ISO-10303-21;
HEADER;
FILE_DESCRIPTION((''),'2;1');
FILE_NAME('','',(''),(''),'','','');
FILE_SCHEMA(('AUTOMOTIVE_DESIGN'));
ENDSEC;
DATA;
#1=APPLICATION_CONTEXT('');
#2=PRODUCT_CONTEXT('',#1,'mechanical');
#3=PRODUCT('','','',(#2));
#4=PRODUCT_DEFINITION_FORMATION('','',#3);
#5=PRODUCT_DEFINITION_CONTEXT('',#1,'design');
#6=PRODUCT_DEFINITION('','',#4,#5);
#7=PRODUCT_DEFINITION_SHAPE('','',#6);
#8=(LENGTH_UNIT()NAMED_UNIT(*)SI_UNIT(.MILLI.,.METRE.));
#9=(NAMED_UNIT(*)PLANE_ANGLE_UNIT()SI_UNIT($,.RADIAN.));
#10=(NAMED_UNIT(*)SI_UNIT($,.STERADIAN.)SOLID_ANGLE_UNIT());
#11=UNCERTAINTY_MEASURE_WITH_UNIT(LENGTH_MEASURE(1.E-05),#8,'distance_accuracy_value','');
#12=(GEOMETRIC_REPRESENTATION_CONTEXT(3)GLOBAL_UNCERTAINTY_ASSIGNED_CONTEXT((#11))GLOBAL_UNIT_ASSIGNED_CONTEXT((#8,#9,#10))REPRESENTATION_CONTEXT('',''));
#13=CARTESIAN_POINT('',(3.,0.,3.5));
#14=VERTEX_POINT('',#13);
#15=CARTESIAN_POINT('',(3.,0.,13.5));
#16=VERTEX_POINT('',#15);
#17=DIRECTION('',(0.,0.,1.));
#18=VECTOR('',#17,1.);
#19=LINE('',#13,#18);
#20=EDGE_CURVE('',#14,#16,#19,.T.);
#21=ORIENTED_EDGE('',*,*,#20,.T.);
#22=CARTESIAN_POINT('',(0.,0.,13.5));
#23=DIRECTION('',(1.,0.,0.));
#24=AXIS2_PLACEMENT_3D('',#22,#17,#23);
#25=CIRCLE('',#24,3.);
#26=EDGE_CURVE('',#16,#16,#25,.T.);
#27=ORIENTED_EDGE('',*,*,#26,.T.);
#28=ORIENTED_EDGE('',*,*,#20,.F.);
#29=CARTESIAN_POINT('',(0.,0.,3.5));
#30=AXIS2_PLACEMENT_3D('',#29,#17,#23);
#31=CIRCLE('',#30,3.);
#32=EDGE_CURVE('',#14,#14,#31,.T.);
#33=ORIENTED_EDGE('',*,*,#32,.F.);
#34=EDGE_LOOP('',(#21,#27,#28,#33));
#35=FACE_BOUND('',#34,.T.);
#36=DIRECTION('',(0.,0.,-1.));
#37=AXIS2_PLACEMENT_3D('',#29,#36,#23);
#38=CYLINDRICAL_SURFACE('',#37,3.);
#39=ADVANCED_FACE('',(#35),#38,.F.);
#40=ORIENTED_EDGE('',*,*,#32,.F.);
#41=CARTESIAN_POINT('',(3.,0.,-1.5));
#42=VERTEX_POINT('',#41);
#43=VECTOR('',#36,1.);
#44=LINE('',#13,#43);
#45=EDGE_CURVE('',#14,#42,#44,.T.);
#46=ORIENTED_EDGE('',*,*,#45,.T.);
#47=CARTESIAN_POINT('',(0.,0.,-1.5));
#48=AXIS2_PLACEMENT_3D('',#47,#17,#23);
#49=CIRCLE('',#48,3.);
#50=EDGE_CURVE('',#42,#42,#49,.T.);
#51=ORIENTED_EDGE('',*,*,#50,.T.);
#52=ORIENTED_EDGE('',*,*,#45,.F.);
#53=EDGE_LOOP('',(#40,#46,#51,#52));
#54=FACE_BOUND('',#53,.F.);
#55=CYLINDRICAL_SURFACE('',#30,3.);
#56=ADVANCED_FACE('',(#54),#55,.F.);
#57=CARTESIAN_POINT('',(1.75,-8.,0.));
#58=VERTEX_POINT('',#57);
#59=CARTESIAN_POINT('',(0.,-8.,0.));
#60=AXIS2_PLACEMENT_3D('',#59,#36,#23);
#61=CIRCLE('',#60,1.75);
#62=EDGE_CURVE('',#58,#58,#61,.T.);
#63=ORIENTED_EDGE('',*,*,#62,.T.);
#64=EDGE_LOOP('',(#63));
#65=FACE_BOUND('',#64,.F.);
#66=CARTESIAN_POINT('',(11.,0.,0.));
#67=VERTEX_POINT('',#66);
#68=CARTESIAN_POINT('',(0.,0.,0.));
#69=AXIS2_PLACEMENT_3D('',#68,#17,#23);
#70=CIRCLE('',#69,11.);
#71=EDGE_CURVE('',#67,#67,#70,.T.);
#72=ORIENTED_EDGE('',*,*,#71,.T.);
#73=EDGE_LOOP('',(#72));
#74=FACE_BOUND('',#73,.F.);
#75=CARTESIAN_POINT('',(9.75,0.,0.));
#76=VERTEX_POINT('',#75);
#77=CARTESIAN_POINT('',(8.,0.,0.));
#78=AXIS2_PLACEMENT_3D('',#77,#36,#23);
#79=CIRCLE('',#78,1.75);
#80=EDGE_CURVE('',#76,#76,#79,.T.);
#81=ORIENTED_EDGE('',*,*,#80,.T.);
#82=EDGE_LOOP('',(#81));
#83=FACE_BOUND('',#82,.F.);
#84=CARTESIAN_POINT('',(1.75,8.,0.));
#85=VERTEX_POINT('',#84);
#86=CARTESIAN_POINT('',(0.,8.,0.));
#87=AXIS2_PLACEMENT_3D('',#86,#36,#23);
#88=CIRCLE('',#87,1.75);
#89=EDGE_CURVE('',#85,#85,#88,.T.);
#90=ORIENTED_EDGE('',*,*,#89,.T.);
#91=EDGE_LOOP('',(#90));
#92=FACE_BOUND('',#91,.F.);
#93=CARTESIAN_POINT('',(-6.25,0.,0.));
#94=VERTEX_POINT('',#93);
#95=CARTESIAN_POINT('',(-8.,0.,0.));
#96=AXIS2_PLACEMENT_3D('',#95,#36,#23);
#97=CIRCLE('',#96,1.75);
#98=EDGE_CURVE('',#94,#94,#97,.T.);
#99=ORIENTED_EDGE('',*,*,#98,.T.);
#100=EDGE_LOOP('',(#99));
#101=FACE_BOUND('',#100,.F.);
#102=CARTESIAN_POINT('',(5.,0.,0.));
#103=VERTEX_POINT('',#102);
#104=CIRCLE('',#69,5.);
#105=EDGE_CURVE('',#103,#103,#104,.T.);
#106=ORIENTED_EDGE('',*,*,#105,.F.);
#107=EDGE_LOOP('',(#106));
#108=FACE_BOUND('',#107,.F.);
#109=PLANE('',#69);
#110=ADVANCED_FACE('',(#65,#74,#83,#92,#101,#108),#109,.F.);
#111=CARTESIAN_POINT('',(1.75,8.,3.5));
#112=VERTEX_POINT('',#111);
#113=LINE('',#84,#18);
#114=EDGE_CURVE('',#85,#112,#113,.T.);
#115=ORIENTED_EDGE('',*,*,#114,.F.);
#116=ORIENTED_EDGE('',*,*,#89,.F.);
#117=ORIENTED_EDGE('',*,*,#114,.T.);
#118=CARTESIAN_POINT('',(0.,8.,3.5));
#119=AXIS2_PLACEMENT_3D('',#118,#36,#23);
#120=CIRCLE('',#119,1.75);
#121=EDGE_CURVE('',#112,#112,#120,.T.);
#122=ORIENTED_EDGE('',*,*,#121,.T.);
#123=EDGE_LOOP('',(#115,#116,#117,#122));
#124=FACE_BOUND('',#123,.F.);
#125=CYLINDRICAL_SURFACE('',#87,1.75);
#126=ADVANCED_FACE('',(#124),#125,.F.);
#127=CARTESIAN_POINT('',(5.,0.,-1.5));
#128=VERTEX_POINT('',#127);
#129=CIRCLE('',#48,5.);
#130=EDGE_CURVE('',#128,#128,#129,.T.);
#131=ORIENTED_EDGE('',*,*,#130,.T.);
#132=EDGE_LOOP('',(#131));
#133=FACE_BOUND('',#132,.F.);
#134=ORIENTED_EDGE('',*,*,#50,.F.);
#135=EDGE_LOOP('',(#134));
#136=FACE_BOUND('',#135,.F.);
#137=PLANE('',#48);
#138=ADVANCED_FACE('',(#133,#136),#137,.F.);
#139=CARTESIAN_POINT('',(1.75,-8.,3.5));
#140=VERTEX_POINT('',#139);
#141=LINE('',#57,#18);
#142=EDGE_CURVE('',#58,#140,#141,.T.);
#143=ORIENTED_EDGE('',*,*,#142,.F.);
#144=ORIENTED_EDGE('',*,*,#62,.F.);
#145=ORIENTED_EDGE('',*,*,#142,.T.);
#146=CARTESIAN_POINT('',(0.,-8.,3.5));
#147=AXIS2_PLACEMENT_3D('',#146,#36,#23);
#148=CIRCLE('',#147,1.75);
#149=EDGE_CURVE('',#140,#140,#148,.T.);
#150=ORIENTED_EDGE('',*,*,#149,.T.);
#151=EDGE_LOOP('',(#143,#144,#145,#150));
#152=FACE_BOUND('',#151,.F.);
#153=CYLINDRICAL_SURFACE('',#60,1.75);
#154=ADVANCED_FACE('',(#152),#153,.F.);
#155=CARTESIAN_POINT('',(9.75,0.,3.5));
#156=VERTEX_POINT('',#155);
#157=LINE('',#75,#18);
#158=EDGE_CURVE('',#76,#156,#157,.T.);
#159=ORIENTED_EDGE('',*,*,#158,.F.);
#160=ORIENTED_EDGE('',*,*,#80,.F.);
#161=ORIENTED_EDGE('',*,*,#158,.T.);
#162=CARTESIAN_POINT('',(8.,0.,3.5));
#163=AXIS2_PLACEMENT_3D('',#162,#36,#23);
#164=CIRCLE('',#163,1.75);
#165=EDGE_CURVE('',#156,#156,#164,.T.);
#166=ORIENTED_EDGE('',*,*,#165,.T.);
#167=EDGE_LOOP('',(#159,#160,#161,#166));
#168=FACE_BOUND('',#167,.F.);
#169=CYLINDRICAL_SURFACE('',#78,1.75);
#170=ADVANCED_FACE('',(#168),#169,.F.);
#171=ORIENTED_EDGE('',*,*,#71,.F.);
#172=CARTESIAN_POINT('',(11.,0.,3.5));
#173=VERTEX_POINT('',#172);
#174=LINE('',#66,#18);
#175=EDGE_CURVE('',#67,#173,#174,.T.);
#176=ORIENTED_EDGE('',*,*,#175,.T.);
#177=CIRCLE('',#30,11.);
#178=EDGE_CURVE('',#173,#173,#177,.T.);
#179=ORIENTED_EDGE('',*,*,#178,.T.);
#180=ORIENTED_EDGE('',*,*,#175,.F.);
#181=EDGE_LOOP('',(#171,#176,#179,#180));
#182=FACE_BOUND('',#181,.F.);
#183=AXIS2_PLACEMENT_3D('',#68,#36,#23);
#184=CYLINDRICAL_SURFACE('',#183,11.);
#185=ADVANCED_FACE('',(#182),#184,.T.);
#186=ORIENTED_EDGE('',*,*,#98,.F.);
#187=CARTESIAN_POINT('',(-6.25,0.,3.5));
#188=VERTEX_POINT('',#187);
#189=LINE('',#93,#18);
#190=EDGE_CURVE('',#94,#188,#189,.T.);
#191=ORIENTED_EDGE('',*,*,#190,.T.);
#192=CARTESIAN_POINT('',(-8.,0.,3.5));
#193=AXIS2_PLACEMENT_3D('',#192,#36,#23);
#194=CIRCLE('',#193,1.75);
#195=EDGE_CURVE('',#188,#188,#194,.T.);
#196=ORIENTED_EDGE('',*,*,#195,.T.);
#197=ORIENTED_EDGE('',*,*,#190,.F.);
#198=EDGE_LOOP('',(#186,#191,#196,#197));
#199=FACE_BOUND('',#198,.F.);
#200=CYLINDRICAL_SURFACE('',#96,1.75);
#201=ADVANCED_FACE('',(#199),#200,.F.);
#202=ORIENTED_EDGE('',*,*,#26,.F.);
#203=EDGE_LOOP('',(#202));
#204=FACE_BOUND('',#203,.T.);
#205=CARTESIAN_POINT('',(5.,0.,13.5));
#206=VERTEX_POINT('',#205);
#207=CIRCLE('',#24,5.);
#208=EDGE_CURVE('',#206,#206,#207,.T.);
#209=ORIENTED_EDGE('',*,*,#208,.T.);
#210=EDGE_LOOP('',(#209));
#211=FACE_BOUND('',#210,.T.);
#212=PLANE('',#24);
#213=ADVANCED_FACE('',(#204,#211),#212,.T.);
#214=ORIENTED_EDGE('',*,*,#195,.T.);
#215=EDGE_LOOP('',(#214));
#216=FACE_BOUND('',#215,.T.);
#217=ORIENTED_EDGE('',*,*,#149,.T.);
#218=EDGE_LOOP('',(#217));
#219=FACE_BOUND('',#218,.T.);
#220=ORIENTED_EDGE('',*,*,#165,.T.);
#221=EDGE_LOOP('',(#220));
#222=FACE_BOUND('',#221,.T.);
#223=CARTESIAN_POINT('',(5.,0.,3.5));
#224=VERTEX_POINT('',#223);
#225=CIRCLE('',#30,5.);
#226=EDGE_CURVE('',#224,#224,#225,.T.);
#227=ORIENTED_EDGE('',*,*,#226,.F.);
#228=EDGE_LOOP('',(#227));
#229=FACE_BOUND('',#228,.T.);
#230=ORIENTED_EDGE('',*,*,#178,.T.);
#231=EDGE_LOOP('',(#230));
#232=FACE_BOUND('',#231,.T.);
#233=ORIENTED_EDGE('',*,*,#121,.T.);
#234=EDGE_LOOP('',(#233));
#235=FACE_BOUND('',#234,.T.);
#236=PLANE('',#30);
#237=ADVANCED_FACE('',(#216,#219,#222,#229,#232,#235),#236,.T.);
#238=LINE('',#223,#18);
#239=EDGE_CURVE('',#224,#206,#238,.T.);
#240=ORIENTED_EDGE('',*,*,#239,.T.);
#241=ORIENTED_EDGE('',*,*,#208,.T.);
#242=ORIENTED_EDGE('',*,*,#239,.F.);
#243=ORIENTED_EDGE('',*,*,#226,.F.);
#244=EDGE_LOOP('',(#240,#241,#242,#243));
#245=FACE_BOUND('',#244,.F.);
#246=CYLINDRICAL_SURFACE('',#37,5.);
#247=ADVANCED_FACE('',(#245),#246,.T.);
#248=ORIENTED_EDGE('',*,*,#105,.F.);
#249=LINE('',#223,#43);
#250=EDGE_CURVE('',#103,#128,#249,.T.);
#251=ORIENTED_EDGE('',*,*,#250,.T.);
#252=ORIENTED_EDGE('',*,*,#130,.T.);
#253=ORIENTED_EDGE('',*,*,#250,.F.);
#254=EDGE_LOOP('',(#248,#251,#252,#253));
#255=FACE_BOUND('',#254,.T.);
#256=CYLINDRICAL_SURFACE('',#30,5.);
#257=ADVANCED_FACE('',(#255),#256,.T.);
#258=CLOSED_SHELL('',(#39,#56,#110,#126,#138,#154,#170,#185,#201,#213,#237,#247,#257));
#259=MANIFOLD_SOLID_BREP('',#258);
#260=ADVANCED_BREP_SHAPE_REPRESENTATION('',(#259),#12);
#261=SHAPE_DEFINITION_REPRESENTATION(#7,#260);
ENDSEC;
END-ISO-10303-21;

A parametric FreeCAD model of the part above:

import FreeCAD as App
import Part
import Sketcher
Q = App.Units.Quantity

doc = App.newDocument("Part")
params = doc.addObject("Spreadsheet::Sheet", "Params")
for row, (alias, value) in enumerate([
    ("sketch1_diameter", "22 mm"),
    ("sketch1_diameter2", "8 mm"),
    ("pad1_length", "3.5 mm"),
    ("sketch2_diameter", "10 mm"),
    ("sketch2_diameter2", "6 mm"),
    ("pad2_length", "10 mm"),
    ("sketch3_diameter", "10 mm"),
    ("sketch3_diameter2", "6 mm"),
    ("pad3_length", "5 mm"),
    ("sketch4_diameter", "3.5 mm"),
    ("pocket1_length", "25 mm"),
], start=1):
    params.set(f"A{row}", alias)
    params.set(f"B{row}", "=" + value)
    params.setAlias(f"B{row}", alias)

body = doc.addObject("PartDesign::Body", "Body")

# Sketch on XY plane
sketch1 = body.newObject("Sketcher::SketchObject", "Sketch")
sketch1.AttachmentSupport = (doc.getObject("XY_Plane"), [""])
sketch1.MapMode = "FlatFace"
sketch1.addGeometry([
    Part.Circle(App.Vector(0, 0, 0), App.Vector(0, 0, 1), 11),
    Part.Circle(App.Vector(0, 0, 0), App.Vector(0, 0, 1), 4),
], False)
sketch1.addConstraint([
    Sketcher.Constraint("Coincident", 0, 3, -1, 1),
    Sketcher.Constraint("Coincident", 1, 3, -1, 1),
    Sketcher.Constraint("Diameter", 0, Q("22 mm")),
    Sketcher.Constraint("Diameter", 1, Q("8 mm")),
])
sketch1.setExpression("Constraints[2]", "Params.sketch1_diameter")
sketch1.setExpression("Constraints[3]", "Params.sketch1_diameter2")
pad1 = body.newObject("PartDesign::Pad", "Pad")
pad1.Profile = sketch1
pad1.setExpression("Length", "Params.pad1_length")

# Sketch on XY plane
sketch2 = body.newObject("Sketcher::SketchObject", "Sketch001")
sketch2.AttachmentSupport = (doc.getObject("XY_Plane"), [""])
sketch2.MapMode = "FlatFace"
sketch2.AttachmentOffset = App.Placement(App.Vector(0, 0, 3.5), App.Rotation())
sketch2.addGeometry([
    Part.Circle(App.Vector(0, 0, 0), App.Vector(0, 0, 1), 5),
    Part.Circle(App.Vector(0, 0, 0), App.Vector(0, 0, 1), 3),
], False)
sketch2.addConstraint([
    Sketcher.Constraint("Coincident", 0, 3, -1, 1),
    Sketcher.Constraint("Coincident", 1, 3, -1, 1),
    Sketcher.Constraint("Diameter", 0, Q("10 mm")),
    Sketcher.Constraint("Diameter", 1, Q("6 mm")),
])
sketch2.setExpression("Constraints[2]", "Params.sketch2_diameter")
sketch2.setExpression("Constraints[3]", "Params.sketch2_diameter2")
pad2 = body.newObject("PartDesign::Pad", "Pad001")
pad2.Profile = sketch2
pad2.setExpression("Length", "Params.pad2_length")

# Sketch on XY plane
sketch3 = body.newObject("Sketcher::SketchObject", "Sketch002")
sketch3.AttachmentSupport = (doc.getObject("XY_Plane"), [""])
sketch3.MapMode = "FlatFace"
sketch3.AttachmentOffset = App.Placement(App.Vector(0, 0, 3.5), App.Rotation())
sketch3.addGeometry([
    Part.Circle(App.Vector(0, 0, 0), App.Vector(0, 0, 1), 5),
    Part.Circle(App.Vector(0, 0, 0), App.Vector(0, 0, 1), 3),
], False)
sketch3.addConstraint([
    Sketcher.Constraint("Coincident", 0, 3, -1, 1),
    Sketcher.Constraint("Coincident", 1, 3, -1, 1),
    Sketcher.Constraint("Diameter", 0, Q("10 mm")),
    Sketcher.Constraint("Diameter", 1, Q("6 mm")),
])
sketch3.setExpression("Constraints[2]", "Params.sketch3_diameter")
sketch3.setExpression("Constraints[3]", "Params.sketch3_diameter2")
pad3 = body.newObject("PartDesign::Pad", "Pad002")
pad3.Profile = sketch3
pad3.setExpression("Length", "Params.pad3_length")
pad3.Reversed = True

# Sketch on XY plane
sketch4 = body.newObject("Sketcher::SketchObject", "Sketch003")
sketch4.AttachmentSupport = (doc.getObject("XY_Plane"), [""])
sketch4.MapMode = "FlatFace"
sketch4.addGeometry([
    Part.Circle(App.Vector(-8, 0, 0), App.Vector(0, 0, 1), 1.8),
    Part.Circle(App.Vector(0, -8, 0), App.Vector(0, 0, 1), 1.8),
    Part.Circle(App.Vector(8, 0, 0), App.Vector(0, 0, 1), 1.8),
    Part.Circle(App.Vector(0, 8, 0), App.Vector(0, 0, 1), 1.8),
], False)
sketch4.addConstraint([
    Sketcher.Constraint("Equal", 0, 1),
    Sketcher.Constraint("Equal", 1, 2),
    Sketcher.Constraint("Equal", 2, 3),
    Sketcher.Constraint("Symmetric", 0, 3, 2, 3, -1, 1),
    Sketcher.Constraint("Symmetric", 1, 3, 3, 3, -1, 1),
    Sketcher.Constraint("PointOnObject", 0, 3, -1),
    Sketcher.Constraint("PointOnObject", 1, 3, -2),
    Sketcher.Constraint("Diameter", 0, Q("3.5 mm")),
    Sketcher.Constraint("DistanceX", 0, 3, -1, 1, Q("8 mm")),
    Sketcher.Constraint("DistanceY", 1, 3, -1, 1, Q("8 mm")),
])
sketch4.setExpression("Constraints[7]", "Params.sketch4_diameter")
pocket1 = body.newObject("PartDesign::Pocket", "Pocket")
pocket1.Profile = sketch4
pocket1.setExpression("Length", "Params.pocket1_length")
pocket1.Reversed = True

doc.recompute()
